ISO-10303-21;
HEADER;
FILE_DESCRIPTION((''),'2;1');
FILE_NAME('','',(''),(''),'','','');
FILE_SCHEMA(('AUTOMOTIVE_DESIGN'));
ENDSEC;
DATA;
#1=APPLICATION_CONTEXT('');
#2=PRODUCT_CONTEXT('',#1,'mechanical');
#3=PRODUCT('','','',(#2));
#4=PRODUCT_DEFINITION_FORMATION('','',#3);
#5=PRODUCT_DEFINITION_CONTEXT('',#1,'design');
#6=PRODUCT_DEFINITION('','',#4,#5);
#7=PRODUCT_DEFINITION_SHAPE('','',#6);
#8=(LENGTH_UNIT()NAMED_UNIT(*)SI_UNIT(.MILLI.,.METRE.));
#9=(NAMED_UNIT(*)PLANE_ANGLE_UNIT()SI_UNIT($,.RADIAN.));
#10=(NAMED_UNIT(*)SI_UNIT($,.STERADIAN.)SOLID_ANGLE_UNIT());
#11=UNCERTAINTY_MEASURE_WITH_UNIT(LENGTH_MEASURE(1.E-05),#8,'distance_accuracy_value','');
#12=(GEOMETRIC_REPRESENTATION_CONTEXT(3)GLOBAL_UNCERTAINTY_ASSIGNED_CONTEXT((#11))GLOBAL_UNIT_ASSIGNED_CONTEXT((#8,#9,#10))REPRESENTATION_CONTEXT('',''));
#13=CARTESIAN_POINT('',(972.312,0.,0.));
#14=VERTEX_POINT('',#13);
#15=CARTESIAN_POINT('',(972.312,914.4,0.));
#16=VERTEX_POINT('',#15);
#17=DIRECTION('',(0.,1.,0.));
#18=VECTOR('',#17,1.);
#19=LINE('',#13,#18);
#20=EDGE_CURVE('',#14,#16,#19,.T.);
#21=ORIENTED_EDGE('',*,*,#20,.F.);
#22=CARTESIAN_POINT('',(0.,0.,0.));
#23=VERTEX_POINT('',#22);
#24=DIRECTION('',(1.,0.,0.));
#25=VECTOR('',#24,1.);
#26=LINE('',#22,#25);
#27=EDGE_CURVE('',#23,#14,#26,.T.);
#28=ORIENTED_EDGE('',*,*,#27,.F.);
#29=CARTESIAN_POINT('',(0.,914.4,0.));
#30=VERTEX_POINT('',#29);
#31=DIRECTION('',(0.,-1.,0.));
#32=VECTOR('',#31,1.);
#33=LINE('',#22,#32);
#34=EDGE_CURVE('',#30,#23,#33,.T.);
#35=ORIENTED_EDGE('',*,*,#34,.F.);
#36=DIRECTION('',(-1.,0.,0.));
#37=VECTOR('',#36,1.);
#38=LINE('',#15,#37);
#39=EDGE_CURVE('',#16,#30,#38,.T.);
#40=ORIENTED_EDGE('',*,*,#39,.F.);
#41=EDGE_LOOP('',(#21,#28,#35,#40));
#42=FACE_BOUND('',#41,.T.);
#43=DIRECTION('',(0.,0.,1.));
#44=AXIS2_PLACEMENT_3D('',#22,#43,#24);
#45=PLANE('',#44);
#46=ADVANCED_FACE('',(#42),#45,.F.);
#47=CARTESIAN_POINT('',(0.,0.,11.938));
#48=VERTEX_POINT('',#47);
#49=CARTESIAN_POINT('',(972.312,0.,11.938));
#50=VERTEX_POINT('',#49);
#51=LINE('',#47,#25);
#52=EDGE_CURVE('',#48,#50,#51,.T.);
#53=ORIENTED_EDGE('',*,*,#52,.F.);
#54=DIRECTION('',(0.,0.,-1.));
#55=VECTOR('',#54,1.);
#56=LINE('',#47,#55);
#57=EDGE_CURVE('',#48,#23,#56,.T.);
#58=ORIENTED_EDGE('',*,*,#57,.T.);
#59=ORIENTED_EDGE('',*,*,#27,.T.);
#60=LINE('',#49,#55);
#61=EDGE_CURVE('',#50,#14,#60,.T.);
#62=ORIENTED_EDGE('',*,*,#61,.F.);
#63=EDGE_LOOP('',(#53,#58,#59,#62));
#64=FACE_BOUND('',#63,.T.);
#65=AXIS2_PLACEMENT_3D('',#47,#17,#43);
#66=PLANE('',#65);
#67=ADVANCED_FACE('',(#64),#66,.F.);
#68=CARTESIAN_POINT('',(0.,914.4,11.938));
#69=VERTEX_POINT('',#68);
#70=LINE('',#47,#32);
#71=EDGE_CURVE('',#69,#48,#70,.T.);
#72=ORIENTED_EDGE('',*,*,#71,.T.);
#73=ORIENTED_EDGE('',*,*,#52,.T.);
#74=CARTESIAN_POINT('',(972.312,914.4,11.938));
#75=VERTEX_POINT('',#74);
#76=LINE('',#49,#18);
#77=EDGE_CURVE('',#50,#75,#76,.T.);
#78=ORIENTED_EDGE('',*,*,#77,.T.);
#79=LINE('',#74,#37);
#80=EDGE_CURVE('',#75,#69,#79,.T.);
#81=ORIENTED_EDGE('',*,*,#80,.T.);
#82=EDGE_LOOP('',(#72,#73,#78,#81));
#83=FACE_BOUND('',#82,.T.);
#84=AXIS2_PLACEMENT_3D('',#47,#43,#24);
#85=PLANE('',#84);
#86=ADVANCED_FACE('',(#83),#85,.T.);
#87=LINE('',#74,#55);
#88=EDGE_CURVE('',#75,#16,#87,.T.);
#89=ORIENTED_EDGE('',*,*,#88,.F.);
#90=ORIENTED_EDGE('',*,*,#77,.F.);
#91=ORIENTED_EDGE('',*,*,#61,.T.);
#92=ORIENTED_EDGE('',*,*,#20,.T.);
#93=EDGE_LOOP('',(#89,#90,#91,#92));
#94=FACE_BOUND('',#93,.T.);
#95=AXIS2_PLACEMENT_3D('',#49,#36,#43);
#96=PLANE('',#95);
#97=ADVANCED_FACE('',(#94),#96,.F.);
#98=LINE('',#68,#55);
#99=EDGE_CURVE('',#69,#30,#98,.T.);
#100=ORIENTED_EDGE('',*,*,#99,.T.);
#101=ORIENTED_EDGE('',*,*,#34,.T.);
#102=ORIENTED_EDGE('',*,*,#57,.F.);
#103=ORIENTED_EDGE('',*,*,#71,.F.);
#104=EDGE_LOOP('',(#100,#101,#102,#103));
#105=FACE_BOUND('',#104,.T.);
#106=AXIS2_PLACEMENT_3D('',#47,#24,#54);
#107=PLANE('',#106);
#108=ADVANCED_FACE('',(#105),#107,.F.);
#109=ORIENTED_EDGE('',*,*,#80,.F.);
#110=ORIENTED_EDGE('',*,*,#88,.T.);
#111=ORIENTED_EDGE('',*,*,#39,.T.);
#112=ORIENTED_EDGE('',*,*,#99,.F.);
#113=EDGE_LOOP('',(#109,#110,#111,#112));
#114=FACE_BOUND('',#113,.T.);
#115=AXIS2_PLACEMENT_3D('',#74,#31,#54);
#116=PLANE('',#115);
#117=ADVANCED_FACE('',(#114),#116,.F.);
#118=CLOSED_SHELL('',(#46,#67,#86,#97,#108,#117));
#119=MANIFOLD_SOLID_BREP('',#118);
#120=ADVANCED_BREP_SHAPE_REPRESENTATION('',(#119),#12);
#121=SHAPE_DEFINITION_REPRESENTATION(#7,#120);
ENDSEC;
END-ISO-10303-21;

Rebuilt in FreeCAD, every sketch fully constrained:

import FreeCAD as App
import Part
import Sketcher

V = App.Vector
Q = App.Units.Quantity

doc = App.newDocument("Part")
body = doc.addObject("PartDesign::Body", "Body")

sketch1 = doc.addObject("Sketcher::SketchObject", "Sketch")
body.addObject(sketch1)
sketch1.AttachmentSupport = (doc.XY_Plane, [""])
sketch1.MapMode = "FlatFace"
sketch1.addGeometry(Part.LineSegment(V(0, 914, 0), V(0, 0, 0)), False)
sketch1.addGeometry(Part.LineSegment(V(0, 0, 0), V(972, 0, 0)), False)
sketch1.addGeometry(Part.LineSegment(V(972, 0, 0), V(972, 914, 0)), False)
sketch1.addGeometry(Part.LineSegment(V(972, 914, 0), V(0, 914, 0)), False)
sketch1.addConstraint(Sketcher.Constraint("Coincident", 0, 2, 1, 1))
sketch1.addConstraint(Sketcher.Constraint("Coincident", 1, 2, 2, 1))
sketch1.addConstraint(Sketcher.Constraint("Coincident", 2, 2, 3, 1))
sketch1.addConstraint(Sketcher.Constraint("Coincident", 3, 2, 0, 1))
sketch1.addConstraint(Sketcher.Constraint("Vertical", 0))
sketch1.addConstraint(Sketcher.Constraint("Horizontal", 1))
sketch1.addConstraint(Sketcher.Constraint("Vertical", 2))
sketch1.addConstraint(Sketcher.Constraint("Horizontal", 3))
sketch1.addConstraint(Sketcher.Constraint("Coincident", 0, 2, -1, 1))
sketch1.addConstraint(Sketcher.Constraint("DistanceY", 0, 2, 0, 1, Q("36 in")))
sketch1.addConstraint(Sketcher.Constraint("DistanceX", 1, 1, 1, 2, Q("38.28 in")))
pad1 = doc.addObject("PartDesign::Pad", "Pad")
body.addObject(pad1)
pad1.Profile = sketch1
pad1.Length = Q("0.47 in")

doc.recompute()
